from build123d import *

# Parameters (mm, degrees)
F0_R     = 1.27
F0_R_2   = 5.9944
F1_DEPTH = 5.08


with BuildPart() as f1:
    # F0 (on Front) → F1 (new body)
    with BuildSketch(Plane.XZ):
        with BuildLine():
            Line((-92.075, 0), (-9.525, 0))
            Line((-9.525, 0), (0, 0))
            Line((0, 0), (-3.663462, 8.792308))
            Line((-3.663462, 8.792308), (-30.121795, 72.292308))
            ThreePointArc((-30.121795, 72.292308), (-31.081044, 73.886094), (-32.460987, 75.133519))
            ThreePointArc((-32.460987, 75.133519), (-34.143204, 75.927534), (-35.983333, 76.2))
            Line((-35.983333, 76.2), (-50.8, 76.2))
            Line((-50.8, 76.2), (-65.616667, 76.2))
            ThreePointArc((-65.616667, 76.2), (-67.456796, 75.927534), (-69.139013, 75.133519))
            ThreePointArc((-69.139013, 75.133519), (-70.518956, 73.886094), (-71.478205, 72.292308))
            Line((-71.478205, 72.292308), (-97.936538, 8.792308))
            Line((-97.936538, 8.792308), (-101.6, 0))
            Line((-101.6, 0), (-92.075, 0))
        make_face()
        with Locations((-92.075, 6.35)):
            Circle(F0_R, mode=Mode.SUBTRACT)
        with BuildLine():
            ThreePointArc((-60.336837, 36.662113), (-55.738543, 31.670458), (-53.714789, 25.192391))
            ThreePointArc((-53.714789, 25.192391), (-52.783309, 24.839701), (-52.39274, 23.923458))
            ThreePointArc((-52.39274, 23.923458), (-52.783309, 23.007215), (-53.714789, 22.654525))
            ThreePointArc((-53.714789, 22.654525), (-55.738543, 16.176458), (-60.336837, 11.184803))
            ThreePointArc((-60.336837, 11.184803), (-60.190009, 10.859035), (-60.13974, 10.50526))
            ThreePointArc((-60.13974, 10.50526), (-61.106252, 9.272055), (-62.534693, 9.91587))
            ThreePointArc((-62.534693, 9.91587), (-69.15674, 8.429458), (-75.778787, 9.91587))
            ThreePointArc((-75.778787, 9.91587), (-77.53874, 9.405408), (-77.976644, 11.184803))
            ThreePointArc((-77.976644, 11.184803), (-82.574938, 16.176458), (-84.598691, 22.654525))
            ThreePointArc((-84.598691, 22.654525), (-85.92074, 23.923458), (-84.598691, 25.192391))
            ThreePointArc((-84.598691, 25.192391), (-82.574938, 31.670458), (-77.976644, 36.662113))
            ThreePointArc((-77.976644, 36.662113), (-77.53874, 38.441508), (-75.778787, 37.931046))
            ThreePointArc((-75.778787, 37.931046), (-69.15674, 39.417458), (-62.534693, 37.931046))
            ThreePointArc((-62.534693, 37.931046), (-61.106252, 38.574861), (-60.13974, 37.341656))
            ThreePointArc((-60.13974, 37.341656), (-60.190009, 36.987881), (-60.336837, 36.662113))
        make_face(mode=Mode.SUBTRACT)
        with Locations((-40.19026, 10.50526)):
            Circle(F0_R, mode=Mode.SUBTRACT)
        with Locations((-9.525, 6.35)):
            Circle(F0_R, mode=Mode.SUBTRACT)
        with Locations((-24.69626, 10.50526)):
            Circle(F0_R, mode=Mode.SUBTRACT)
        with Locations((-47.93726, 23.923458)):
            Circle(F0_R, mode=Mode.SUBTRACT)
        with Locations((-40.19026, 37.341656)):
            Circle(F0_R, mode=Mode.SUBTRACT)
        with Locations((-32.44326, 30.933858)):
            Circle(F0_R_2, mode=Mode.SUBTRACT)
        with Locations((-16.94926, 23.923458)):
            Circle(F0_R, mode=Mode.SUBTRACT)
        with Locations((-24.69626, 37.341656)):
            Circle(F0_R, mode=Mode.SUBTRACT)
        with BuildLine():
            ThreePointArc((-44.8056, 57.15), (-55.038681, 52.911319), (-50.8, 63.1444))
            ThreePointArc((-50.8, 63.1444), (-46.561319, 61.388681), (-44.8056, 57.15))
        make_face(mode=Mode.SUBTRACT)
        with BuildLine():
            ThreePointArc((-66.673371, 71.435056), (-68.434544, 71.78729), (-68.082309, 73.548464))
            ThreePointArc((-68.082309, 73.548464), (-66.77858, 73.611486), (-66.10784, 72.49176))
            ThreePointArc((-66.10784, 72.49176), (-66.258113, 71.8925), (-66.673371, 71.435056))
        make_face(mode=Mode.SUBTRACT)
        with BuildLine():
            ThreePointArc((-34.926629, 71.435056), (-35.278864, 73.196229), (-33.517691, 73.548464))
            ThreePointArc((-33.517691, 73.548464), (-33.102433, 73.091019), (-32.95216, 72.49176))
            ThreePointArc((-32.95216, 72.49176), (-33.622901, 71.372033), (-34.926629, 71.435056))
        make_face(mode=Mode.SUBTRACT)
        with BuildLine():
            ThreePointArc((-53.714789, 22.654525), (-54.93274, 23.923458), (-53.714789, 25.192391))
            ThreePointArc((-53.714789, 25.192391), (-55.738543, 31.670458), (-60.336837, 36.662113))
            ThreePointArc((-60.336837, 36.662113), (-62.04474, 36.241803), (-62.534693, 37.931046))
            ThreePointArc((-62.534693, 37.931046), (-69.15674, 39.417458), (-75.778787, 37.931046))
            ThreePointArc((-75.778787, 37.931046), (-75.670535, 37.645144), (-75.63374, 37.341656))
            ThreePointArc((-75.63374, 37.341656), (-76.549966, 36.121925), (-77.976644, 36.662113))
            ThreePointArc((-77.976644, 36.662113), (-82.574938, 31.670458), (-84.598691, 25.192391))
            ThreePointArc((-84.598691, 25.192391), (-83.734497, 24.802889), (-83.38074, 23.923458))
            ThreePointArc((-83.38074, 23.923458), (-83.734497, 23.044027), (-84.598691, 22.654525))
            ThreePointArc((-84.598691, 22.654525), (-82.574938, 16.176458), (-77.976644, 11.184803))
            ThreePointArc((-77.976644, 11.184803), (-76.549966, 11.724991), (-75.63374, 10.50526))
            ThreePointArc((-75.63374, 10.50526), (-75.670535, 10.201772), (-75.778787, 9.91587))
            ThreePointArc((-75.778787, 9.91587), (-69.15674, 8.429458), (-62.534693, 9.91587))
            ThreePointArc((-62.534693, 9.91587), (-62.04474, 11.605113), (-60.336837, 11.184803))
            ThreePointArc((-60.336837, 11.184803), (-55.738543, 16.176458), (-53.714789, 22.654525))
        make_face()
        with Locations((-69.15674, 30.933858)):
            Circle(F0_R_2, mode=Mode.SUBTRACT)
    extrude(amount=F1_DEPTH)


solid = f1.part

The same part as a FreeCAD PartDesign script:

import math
import FreeCAD as App
import Part
import Sketcher

V = App.Vector
Q = App.Units.Quantity

doc = App.newDocument("Part")
params = doc.addObject("Spreadsheet::Sheet", "Params")
for row, (alias, value) in enumerate([
    ("sketch1_diameter", "0.1 in"),
    ("sketch1_width", "4 in"),
    ("sketch1_radius", "0.2500002 in"),
    ("sketch1_diameter2", "0.472 in"),
    ("sketch1_length", "0.375 in"),
    ("pad1_length", "0.2 in"),
], start=1):
    params.set(f"A{row}", alias)
    params.set(f"B{row}", "=" + value)
    params.setAlias(f"B{row}", alias)

body = doc.addObject("PartDesign::Body", "Body")

sketch1 = body.newObject("Sketcher::SketchObject", "Sketch")
sketch1.AttachmentSupport = (doc.getObject("XZ_Plane"), [""])
sketch1.MapMode = "FlatFace"
sketch1.addGeometry([
    Part.LineSegment(V(0, 0, 0), V(-3.663462, 8.792308, 0)),
    Part.LineSegment(V(-3.663462, 8.792308, 0), V(-30.121795, 72.292308, 0)),
    Part.ArcOfCircle(Part.Circle(V(-35.983337, 69.849996, 0), V(0, 0, 1), 6.350005), math.radians(22.619886), math.radians(56.30992)),
    Part.ArcOfCircle(Part.Circle(V(-35.983335, 69.849995, 0), V(0, 0, 1), 6.350005), math.radians(56.30994), math.radians(89.999979)),
    Part.LineSegment(V(-35.983333, 76.2, 0), V(-65.616667, 76.2, 0)),
    Part.ArcOfCircle(Part.Circle(V(-65.616665, 69.849995, 0), V(0, 0, 1), 6.350005), math.radians(90.000021), math.radians(123.69006)),
    Part.ArcOfCircle(Part.Circle(V(-65.616663, 69.849996, 0), V(0, 0, 1), 6.350005), math.radians(123.69008), math.radians(157.380114)),
    Part.LineSegment(V(-71.478205, 72.292308, 0), V(-97.936538, 8.792308, 0)),
    Part.LineSegment(V(-97.936538, 8.792308, 0), V(-101.6, 0, 0)),
    Part.LineSegment(V(-101.6, 0, 0), V(0, 0, 0)),
    Part.Circle(V(-92.075, 6.35, 0), V(0, 0, 1), 1.27),
    Part.ArcOfCircle(Part.Circle(V(-76.90374, 10.505261, 0), V(0, 0, 1), 1.27), math.radians(147.651163), math.radians(332.34885)),
    Part.ArcOfCircle(Part.Circle(V(-76.90374, 10.50526, 0), V(0, 0, 1), 1.27), math.radians(0.000021), math.radians(147.651111)),
    Part.ArcOfCircle(Part.Circle(V(-76.903745, 10.505261, 0), V(0, 0, 1), 1.270005), math.radians(-27.651078), math.radians(-0.000061)),
    Part.ArcOfCircle(Part.Circle(V(-61.409733, 10.505262, 0), V(0, 0, 1), 1.269993), math.radians(-0.000073), math.radians(32.348984)),
    Part.ArcOfCircle(Part.Circle(V(-61.40974, 10.50526, 0), V(0, 0, 1), 1.27), math.radians(-152.348865), math.radians(-0.000009)),
    Part.ArcOfCircle(Part.Circle(V(-61.40974, 10.505261, 0), V(0, 0, 1), 1.27), math.radians(32.348847), math.radians(207.651163)),
    Part.ArcOfCircle(Part.Circle(V(-84.65074, 23.923458, 0), V(0, 0, 1), 1.27), math.radians(87.651164), math.radians(272.348836)),
    Part.ArcOfCircle(Part.Circle(V(-84.65074, 23.923458, 0), V(0, 0, 1), 1.27), math.radians(-0.000005), math.radians(87.651166)),
    Part.ArcOfCircle(Part.Circle(V(-84.65074, 23.923458, 0), V(0, 0, 1), 1.27), math.radians(-87.651166), math.radians(0.000005)),
    Part.ArcOfCircle(Part.Circle(V(-76.90374, 37.341655, 0), V(0, 0, 1), 1.27), math.radians(27.65115), math.radians(212.348837)),
    Part.ArcOfCircle(Part.Circle(V(-76.903745, 37.341655, 0), V(0, 0, 1), 1.270005), math.radians(0.000061), math.radians(27.651078)),
    Part.ArcOfCircle(Part.Circle(V(-76.90374, 37.341656, 0), V(0, 0, 1), 1.27), math.radians(-147.651111), math.radians(-0.000021)),
    Part.ArcOfCircle(Part.Circle(V(-53.66274, 23.923458, 0), V(0, 0, 1), 1.27), math.radians(-0.000004), math.radians(92.348841)),
    Part.ArcOfCircle(Part.Circle(V(-53.66274, 23.923458, 0), V(0, 0, 1), 1.27), math.radians(-92.348841), math.radians(0.000004)),
    Part.ArcOfCircle(Part.Circle(V(-53.66274, 23.923458, 0), V(0, 0, 1), 1.27), math.radians(92.348838), math.radians(267.651162)),
    Part.Circle(V(-69.15674, 30.933858, 0), V(0, 0, 1), 5.9944),
    Part.ArcOfCircle(Part.Circle(V(-61.409733, 37.341654, 0), V(0, 0, 1), 1.269993), math.radians(-32.348984), math.radians(0.000073)),
    Part.ArcOfCircle(Part.Circle(V(-61.40974, 37.341655, 0), V(0, 0, 1), 1.27), math.radians(152.348837), math.radians(327.651153)),
    Part.ArcOfCircle(Part.Circle(V(-61.40974, 37.341656, 0), V(0, 0, 1), 1.27), math.radians(0.000009), math.radians(152.348865)),
    Part.Circle(V(-40.19026, 10.50526, 0), V(0, 0, 1), 1.27),
    Part.Circle(V(-24.69626, 10.50526, 0), V(0, 0, 1), 1.27),
    Part.Circle(V(-9.525, 6.35, 0), V(0, 0, 1), 1.27),
    Part.Circle(V(-47.93726, 23.923458, 0), V(0, 0, 1), 1.27),
    Part.Circle(V(-40.19026, 37.341656, 0), V(0, 0, 1), 1.27),
    Part.Circle(V(-32.44326, 30.933858, 0), V(0, 0, 1), 5.9944),
    Part.Circle(V(-16.94926, 23.923458, 0), V(0, 0, 1), 1.27),
    Part.Circle(V(-24.69626, 37.341656, 0), V(0, 0, 1), 1.27),
    Part.ArcOfCircle(Part.Circle(V(-50.8, 57.15, 0), V(0, 0, 1), 5.9944), math.radians(-0.000004), math.radians(90.000004)),
    Part.ArcOfCircle(Part.Circle(V(-50.8, 57.15, 0), V(0, 0, 1), 5.9944), math.radians(89.999999), math.radians(360.000001)),
    Part.ArcOfCircle(Part.Circle(V(-67.377837, 72.491758, 0), V(0, 0, 1), 1.269997), math.radians(-56.310027), math.radians(0.00008)),
    Part.ArcOfCircle(Part.Circle(V(-67.37784, 72.49176, 0), V(0, 0, 1), 1.27), math.radians(123.69003), math.radians(303.69008)),
    Part.ArcOfCircle(Part.Circle(V(-67.37784, 72.491759, 0), V(0, 0, 1), 1.27), math.radians(0.000033), math.radians(123.690023)),
    Part.ArcOfCircle(Part.Circle(V(-34.22216, 72.49176, 0), V(0, 0, 1), 1.27), math.radians(-123.690054), math.radians(-0.000002)),
    Part.ArcOfCircle(Part.Circle(V(-34.22216, 72.49176, 0), V(0, 0, 1), 1.27), math.radians(56.309945), math.radians(236.309945)),
    Part.ArcOfCircle(Part.Circle(V(-34.22216, 72.49176, 0), V(0, 0, 1), 1.27), math.radians(0.000005), math.radians(56.309943)),
], False)
sketch1.addConstraint([
    Sketcher.Constraint("Coincident", 0, 2, 1, 1),
    Sketcher.Constraint("Tangent", 1, 2, 2, 1),
    Sketcher.Constraint("Tangent", 2, 2, 3, 1),
    Sketcher.Constraint("Tangent", 3, 2, 4, 1),
    Sketcher.Constraint("Tangent", 4, 2, 5, 1),
    Sketcher.Constraint("Tangent", 5, 2, 6, 1),
    Sketcher.Constraint("Tangent", 6, 2, 7, 1),
    Sketcher.Constraint("Coincident", 7, 2, 8, 1),
    Sketcher.Constraint("Coincident", 8, 2, 9, 1),
    Sketcher.Constraint("Coincident", 9, 2, 0, 1),
    Sketcher.Constraint("Tangent", 11, 1, 12, 2),
    Sketcher.Constraint("Tangent", 12, 1, 13, 2),
    Sketcher.Constraint("Tangent", 13, 1, 11, 2),
    Sketcher.Constraint("Tangent", 14, 1, 15, 2),
    Sketcher.Constraint("Tangent", 15, 1, 16, 2),
    Sketcher.Constraint("Coincident", 16, 1, 14, 2),
    Sketcher.Constraint("Tangent", 17, 1, 18, 2),
    Sketcher.Constraint("Tangent", 18, 1, 19, 2),
    Sketcher.Constraint("Tangent", 19, 1, 17, 2),
    Sketcher.Constraint("Tangent", 20, 1, 21, 2),
    Sketcher.Constraint("Tangent", 21, 1, 22, 2),
    Sketcher.Constraint("Tangent", 22, 1, 20, 2),
    Sketcher.Constraint("Tangent", 23, 1, 24, 2),
    Sketcher.Constraint("Tangent", 24, 1, 25, 2),
    Sketcher.Constraint("Tangent", 25, 1, 23, 2),
    Sketcher.Constraint("Coincident", 27, 1, 28, 2),
    Sketcher.Constraint("Tangent", 28, 1, 29, 2),
    Sketcher.Constraint("Tangent", 29, 1, 27, 2),
    Sketcher.Constraint("Tangent", 38, 1, 39, 2),
    Sketcher.Constraint("Coincident", 39, 1, 38, 2),
    Sketcher.Constraint("Tangent", 40, 1, 41, 2),
    Sketcher.Constraint("Tangent", 41, 1, 42, 2),
    Sketcher.Constraint("Tangent", 42, 1, 40, 2),
    Sketcher.Constraint("Tangent", 43, 1, 44, 2),
    Sketcher.Constraint("Tangent", 44, 1, 45, 2),
    Sketcher.Constraint("Tangent", 45, 1, 43, 2),
    Sketcher.Constraint("Horizontal", 4),
    Sketcher.Constraint("Horizontal", 9),
    Sketcher.Constraint("Coincident", 9, 2, -1, 1),
    Sketcher.Constraint("Equal", 2, 3),
    Sketcher.Constraint("Equal", 3, 5),
    Sketcher.Constraint("Equal", 5, 6),
    Sketcher.Constraint("Equal", 10, 11),
    Sketcher.Constraint("Equal", 12, 15),
    Sketcher.Constraint("Equal", 15, 16),
    Sketcher.Constraint("Equal", 16, 17),
    Sketcher.Constraint("Equal", 19, 20),
    Sketcher.Constraint("Equal", 22, 23),
    Sketcher.Constraint("Equal", 14, 27),
    Sketcher.Constraint("Equal", 25, 28),
    Sketcher.Constraint("Equal", 29, 30),
    Sketcher.Constraint("Equal", 30, 31),
    Sketcher.Constraint("Equal", 31, 32),
    Sketcher.Constraint("Equal", 32, 33),
    Sketcher.Constraint("Equal", 33, 34),
    Sketcher.Constraint("Equal", 26, 35),
    Sketcher.Constraint("Equal", 34, 36),
    Sketcher.Constraint("Equal", 36, 37),
    Sketcher.Constraint("Equal", 35, 38),
    Sketcher.Constraint("Equal", 37, 41),
    Sketcher.Constraint("Equal", 42, 43),
    Sketcher.Constraint("Parallel", 0, 1),
    Sketcher.Constraint("Parallel", 7, 8),
    Sketcher.Constraint("Horizontal", 13, 3, 14, 3),
    Sketcher.Constraint("Horizontal", 19, 3, 23, 3),
    Sketcher.Constraint("Horizontal", 21, 3, 27, 3),
    Sketcher.Constraint("Horizontal", 16, 3, 30, 3),
    Sketcher.Constraint("Horizontal", 30, 3, 31, 3),
    Sketcher.Constraint("Horizontal", 10, 3, 32, 3),
    Sketcher.Constraint("Horizontal", 25, 3, 33, 3),
    Sketcher.Constraint("Horizontal", 29, 3, 34, 3),
    Sketcher.Constraint("Horizontal", 26, 3, 35, 3),
    Sketcher.Constraint("Horizontal", 33, 3, 36, 3),
    Sketcher.Constraint("Horizontal", 34, 3, 37, 3),
    Sketcher.Constraint("Horizontal", 42, 3, 43, 3),
    Sketcher.Constraint("Horizontal", 2, 2, 5, 2),
    Sketcher.Constraint("Horizontal", 1, 2, 6, 2),
    Sketcher.Constraint("Horizontal", 0, 2, 7, 2),
    Sketcher.Constraint("Horizontal", 31, 3, 12, 1),
    Sketcher.Constraint("Horizontal", 12, 1, 14, 1),
    Sketcher.Constraint("Horizontal", 13, 1, 15, 1),
    Sketcher.Constraint("Horizontal", 11, 1, 16, 1),
    Sketcher.Constraint("Horizontal", 36, 3, 18, 1),
    Sketcher.Constraint("Horizontal", 37, 3, 21, 1),
    Sketcher.Constraint("Horizontal", 18, 1, 23, 1),
    Sketcher.Constraint("Horizontal", 19, 1, 24, 1),
    Sketcher.Constraint("Horizontal", 17, 1, 25, 1),
    Sketcher.Constraint("Horizontal", 22, 1, 27, 1),
    Sketcher.Constraint("Horizontal", 20, 1, 28, 1),
    Sketcher.Constraint("Horizontal", 21, 1, 29, 1),
    Sketcher.Constraint("Horizontal", 39, 3, 38, 1),
    Sketcher.Constraint("Horizontal", 45, 3, 42, 1),
    Sketcher.Constraint("Horizontal", 40, 1, 43, 1),
    Sketcher.Constraint("Horizontal", 41, 1, 44, 1),
    Sketcher.Constraint("Horizontal", 42, 1, 45, 1),
    Sketcher.Constraint("Vertical", 12, 3, 20, 3),
    Sketcher.Constraint("Vertical", 14, 3, 27, 3),
    Sketcher.Constraint("Vertical", 30, 3, 34, 3),
    Sketcher.Constraint("Vertical", 31, 3, 37, 3),
    Sketcher.Constraint("Vertical", 17, 1, 19, 1),
    Sketcher.Constraint("Vertical", 13, 1, 20, 1),
    Sketcher.Constraint("Vertical", 11, 1, 22, 1),
    Sketcher.Constraint("Vertical", 38, 3, 39, 1),
    Sketcher.Constraint("Diameter", 10, Q("0.1 in")),
    Sketcher.Constraint("DistanceX", 9, 1, 9, 2, Q("4 in")),
    Sketcher.Constraint("Radius", 2, Q("0.2500002 in")),
    Sketcher.Constraint("Diameter", 26, Q("0.472 in")),
    Sketcher.Constraint("DistanceX", 38, 3, -1, 1, Q("2 in")),
    Sketcher.Constraint("DistanceY", -1, 1, 3, 2, Q("3 in")),
    Sketcher.Constraint("DistanceY", -1, 1, 10, 3, Q("0.25 in")),
    Sketcher.Constraint("DistanceY", -1, 1, 38, 3, Q("2.25 in")),
    Sketcher.Constraint("Distance", 0, Q("0.375 in")),
    Sketcher.Constraint("DistanceX", 10, 3, -1, 1, Q("3.625 in")),
    Sketcher.Constraint("DistanceX", 32, 3, -1, 1, Q("0.375 in")),
    Sketcher.Constraint("DistanceX", 4, 2, 4, 1, Q("29.633334 mm")),
    Sketcher.Constraint("DistanceX", 11, 3, -1, 1, Q("76.90374 mm")),
    Sketcher.Constraint("DistanceY", -1, 1, 11, 3, Q("10.505261 mm")),
    Sketcher.Constraint("DistanceX", 15, 3, -1, 1, Q("61.40974 mm")),
    Sketcher.Constraint("DistanceX", 17, 3, -1, 1, Q("84.65074 mm")),
    Sketcher.Constraint("DistanceY", -1, 1, 17, 3, Q("23.923458 mm")),
    Sketcher.Constraint("DistanceX", 23, 3, -1, 1, Q("53.66274 mm")),
    Sketcher.Constraint("DistanceX", 26, 3, -1, 1, Q("69.15674 mm")),
    Sketcher.Constraint("DistanceY", -1, 1, 26, 3, Q("30.933858 mm")),
    Sketcher.Constraint("DistanceX", 30, 3, -1, 1, Q("40.19026 mm")),
    Sketcher.Constraint("DistanceX", 31, 3, -1, 1, Q("24.69626 mm")),
    Sketcher.Constraint("DistanceX", 33, 3, -1, 1, Q("47.93726 mm")),
    Sketcher.Constraint("DistanceX", 35, 3, -1, 1, Q("32.44326 mm")),
    Sketcher.Constraint("DistanceX", 36, 3, -1, 1, Q("16.94926 mm")),
    Sketcher.Constraint("DistanceY", -1, 1, 40, 3, Q("72.491758 mm")),
    Sketcher.Constraint("DistanceX", 41, 3, -1, 1, Q("67.37784 mm")),
    Sketcher.Constraint("DistanceX", 43, 3, -1, 1, Q("34.22216 mm")),
    Sketcher.Constraint("DistanceY", -1, 1, 2, 2, Q("75.133519 mm")),
    Sketcher.Constraint("DistanceY", -1, 1, 13, 1, Q("9.91587 mm")),
    Sketcher.Constraint("DistanceX", 17, 1, -1, 1, Q("84.598691 mm")),
    Sketcher.Constraint("DistanceX", 40, 1, -1, 1, Q("66.673371 mm")),
    Sketcher.Constraint("DistanceX", 41, 1, -1, 1, Q("68.082309 mm")),
    Sketcher.Constraint("DistanceY", -1, 1, 20, 3, Q("37.341655 mm")),
    Sketcher.Constraint("DistanceX", 11, 1, -1, 1, Q("77.976644 mm")),
])
sketch1.setExpression("Constraints[103]", "Params.sketch1_diameter")
sketch1.setExpression("Constraints[104]", "Params.sketch1_width")
sketch1.setExpression("Constraints[105]", "Params.sketch1_radius")
sketch1.setExpression("Constraints[106]", "Params.sketch1_diameter2")
sketch1.setExpression("Constraints[111]", "Params.sketch1_length")
pad1 = body.newObject("PartDesign::Pad", "Pad")
pad1.Profile = sketch1
pad1.setExpression("Length", "Params.pad1_length")

doc.recompute()
